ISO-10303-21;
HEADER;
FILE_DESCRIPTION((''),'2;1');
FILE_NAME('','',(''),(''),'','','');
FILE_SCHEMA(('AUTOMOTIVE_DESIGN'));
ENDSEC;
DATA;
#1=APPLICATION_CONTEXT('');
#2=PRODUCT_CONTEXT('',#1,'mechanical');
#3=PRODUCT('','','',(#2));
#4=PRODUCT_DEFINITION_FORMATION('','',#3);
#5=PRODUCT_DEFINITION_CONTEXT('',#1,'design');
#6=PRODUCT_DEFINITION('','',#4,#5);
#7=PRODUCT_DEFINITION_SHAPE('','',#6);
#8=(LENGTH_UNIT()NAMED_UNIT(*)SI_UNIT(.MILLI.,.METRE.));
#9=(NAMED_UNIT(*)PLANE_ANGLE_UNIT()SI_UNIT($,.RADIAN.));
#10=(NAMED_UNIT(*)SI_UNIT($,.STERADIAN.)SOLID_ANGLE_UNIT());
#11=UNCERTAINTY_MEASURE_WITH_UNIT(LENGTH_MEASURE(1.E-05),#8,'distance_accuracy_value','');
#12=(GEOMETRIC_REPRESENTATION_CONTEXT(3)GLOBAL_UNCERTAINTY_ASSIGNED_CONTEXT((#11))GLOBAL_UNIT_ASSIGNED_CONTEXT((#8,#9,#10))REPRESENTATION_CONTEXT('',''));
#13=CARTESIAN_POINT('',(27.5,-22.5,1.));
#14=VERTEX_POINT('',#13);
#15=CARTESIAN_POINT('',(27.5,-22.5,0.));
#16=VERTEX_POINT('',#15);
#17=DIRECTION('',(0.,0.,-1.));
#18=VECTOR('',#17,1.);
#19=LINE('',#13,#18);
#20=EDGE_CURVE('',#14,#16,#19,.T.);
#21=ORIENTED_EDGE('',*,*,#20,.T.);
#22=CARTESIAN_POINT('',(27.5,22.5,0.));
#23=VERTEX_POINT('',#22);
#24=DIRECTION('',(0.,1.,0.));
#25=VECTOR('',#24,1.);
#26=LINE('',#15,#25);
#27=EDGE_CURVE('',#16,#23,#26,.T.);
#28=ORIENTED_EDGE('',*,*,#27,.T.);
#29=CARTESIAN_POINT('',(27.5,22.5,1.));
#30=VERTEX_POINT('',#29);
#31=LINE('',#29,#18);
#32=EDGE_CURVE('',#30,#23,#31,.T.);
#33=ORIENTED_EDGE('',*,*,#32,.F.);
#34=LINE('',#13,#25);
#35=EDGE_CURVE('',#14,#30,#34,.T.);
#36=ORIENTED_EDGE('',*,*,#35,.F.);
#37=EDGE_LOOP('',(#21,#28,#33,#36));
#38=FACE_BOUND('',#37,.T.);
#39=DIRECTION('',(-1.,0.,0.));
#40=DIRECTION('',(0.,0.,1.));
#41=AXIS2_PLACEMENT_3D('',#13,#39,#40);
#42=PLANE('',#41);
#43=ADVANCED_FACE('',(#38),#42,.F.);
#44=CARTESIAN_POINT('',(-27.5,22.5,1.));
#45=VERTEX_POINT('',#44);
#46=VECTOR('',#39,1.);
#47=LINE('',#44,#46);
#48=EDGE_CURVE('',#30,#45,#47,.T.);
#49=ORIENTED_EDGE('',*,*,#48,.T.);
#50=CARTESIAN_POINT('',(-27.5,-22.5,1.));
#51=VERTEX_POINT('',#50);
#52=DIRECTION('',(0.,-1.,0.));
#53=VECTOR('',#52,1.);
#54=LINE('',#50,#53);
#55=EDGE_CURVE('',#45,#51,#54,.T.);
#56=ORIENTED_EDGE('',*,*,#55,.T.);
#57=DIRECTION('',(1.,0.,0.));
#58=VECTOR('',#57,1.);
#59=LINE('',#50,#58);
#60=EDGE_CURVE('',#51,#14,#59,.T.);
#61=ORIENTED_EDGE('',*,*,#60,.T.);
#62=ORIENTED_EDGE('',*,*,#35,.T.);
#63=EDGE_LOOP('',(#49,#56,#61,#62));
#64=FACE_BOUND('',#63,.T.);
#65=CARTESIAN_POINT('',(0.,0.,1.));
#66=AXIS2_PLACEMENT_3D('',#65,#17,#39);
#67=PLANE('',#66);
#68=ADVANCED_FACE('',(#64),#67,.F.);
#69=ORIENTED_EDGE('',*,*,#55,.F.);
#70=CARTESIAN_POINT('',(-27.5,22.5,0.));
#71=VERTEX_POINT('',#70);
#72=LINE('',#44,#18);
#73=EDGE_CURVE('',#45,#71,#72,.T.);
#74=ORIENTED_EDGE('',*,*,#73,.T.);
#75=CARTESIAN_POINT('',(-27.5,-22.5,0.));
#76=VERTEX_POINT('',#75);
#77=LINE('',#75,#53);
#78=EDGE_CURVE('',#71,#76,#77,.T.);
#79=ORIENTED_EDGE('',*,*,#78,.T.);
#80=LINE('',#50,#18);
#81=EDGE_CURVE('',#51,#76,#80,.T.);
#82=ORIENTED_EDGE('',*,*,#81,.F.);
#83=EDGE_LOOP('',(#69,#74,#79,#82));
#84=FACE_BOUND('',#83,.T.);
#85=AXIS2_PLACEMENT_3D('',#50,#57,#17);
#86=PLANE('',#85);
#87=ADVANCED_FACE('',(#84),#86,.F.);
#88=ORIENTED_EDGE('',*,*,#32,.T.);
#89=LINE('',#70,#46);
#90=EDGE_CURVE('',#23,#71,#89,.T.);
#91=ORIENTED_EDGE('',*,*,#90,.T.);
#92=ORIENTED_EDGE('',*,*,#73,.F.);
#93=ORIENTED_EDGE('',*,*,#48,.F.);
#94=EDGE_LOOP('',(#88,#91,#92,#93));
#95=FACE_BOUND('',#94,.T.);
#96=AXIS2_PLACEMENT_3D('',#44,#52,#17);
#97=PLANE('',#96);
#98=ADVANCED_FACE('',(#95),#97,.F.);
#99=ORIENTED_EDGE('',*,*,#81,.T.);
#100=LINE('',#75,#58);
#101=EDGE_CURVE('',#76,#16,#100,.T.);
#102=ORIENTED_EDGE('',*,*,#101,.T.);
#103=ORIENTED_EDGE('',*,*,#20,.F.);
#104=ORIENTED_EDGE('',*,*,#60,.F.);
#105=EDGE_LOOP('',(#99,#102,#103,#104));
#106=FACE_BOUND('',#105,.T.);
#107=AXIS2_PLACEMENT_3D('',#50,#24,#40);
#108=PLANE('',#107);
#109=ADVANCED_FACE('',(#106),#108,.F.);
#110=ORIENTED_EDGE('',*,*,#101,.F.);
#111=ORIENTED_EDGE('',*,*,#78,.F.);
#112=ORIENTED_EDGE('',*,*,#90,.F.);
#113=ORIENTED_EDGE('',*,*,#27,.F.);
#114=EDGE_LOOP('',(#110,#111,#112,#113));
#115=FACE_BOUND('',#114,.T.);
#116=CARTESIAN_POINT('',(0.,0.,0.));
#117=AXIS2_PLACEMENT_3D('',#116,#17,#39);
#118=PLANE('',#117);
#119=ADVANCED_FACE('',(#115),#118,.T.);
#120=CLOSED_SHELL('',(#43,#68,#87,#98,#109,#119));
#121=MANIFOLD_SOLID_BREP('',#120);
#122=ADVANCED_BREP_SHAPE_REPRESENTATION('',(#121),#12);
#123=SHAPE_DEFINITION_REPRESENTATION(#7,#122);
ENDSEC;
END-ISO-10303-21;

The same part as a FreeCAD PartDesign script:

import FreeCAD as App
import Part
import Sketcher

V = App.Vector


def add_polygon(sketch, points):
    """Adds a closed chain of lines whose ends are joined by coincident constraints."""
    first, n = sketch.GeometryCount, len(points)
    for a, b in zip(points, points[1:] + points[:1]):
        sketch.addGeometry(Part.LineSegment(App.Vector(*a, 0), App.Vector(*b, 0)), False)
    for i in range(n):
        sketch.addConstraint(Sketcher.Constraint("Coincident", first + i, 2, first + (i + 1) % n, 1))

doc = App.newDocument("Part")
body = doc.addObject("PartDesign::Body", "Body")

# Sketch on XY plane
sketch1 = body.newObject("Sketcher::SketchObject", "Sketch")
sketch1.AttachmentSupport = (doc.getObject("XY_Plane"), [""])
sketch1.MapMode = "FlatFace"
add_polygon(sketch1, [(-27.5, 22.5), (-27.5, -22.5), (27.5, -22.5), (27.5, 22.5)])  # lines 0-3
sketch1.addConstraint([
    Sketcher.Constraint("Vertical", 0),
    Sketcher.Constraint("Horizontal", 1),
    Sketcher.Constraint("Vertical", 2),
    Sketcher.Constraint("Horizontal", 3),
    Sketcher.Constraint("Symmetric", 0, 2, 2, 2, -1, 1),
    Sketcher.Constraint("DistanceX", 1, 1, 1, 2, 55.0),
    Sketcher.Constraint("DistanceY", 0, 2, 0, 1, 45.0),
])
pad1 = body.newObject("PartDesign::Pad", "Pad")
pad1.Profile = sketch1
pad1.Length = 1

doc.recompute()
